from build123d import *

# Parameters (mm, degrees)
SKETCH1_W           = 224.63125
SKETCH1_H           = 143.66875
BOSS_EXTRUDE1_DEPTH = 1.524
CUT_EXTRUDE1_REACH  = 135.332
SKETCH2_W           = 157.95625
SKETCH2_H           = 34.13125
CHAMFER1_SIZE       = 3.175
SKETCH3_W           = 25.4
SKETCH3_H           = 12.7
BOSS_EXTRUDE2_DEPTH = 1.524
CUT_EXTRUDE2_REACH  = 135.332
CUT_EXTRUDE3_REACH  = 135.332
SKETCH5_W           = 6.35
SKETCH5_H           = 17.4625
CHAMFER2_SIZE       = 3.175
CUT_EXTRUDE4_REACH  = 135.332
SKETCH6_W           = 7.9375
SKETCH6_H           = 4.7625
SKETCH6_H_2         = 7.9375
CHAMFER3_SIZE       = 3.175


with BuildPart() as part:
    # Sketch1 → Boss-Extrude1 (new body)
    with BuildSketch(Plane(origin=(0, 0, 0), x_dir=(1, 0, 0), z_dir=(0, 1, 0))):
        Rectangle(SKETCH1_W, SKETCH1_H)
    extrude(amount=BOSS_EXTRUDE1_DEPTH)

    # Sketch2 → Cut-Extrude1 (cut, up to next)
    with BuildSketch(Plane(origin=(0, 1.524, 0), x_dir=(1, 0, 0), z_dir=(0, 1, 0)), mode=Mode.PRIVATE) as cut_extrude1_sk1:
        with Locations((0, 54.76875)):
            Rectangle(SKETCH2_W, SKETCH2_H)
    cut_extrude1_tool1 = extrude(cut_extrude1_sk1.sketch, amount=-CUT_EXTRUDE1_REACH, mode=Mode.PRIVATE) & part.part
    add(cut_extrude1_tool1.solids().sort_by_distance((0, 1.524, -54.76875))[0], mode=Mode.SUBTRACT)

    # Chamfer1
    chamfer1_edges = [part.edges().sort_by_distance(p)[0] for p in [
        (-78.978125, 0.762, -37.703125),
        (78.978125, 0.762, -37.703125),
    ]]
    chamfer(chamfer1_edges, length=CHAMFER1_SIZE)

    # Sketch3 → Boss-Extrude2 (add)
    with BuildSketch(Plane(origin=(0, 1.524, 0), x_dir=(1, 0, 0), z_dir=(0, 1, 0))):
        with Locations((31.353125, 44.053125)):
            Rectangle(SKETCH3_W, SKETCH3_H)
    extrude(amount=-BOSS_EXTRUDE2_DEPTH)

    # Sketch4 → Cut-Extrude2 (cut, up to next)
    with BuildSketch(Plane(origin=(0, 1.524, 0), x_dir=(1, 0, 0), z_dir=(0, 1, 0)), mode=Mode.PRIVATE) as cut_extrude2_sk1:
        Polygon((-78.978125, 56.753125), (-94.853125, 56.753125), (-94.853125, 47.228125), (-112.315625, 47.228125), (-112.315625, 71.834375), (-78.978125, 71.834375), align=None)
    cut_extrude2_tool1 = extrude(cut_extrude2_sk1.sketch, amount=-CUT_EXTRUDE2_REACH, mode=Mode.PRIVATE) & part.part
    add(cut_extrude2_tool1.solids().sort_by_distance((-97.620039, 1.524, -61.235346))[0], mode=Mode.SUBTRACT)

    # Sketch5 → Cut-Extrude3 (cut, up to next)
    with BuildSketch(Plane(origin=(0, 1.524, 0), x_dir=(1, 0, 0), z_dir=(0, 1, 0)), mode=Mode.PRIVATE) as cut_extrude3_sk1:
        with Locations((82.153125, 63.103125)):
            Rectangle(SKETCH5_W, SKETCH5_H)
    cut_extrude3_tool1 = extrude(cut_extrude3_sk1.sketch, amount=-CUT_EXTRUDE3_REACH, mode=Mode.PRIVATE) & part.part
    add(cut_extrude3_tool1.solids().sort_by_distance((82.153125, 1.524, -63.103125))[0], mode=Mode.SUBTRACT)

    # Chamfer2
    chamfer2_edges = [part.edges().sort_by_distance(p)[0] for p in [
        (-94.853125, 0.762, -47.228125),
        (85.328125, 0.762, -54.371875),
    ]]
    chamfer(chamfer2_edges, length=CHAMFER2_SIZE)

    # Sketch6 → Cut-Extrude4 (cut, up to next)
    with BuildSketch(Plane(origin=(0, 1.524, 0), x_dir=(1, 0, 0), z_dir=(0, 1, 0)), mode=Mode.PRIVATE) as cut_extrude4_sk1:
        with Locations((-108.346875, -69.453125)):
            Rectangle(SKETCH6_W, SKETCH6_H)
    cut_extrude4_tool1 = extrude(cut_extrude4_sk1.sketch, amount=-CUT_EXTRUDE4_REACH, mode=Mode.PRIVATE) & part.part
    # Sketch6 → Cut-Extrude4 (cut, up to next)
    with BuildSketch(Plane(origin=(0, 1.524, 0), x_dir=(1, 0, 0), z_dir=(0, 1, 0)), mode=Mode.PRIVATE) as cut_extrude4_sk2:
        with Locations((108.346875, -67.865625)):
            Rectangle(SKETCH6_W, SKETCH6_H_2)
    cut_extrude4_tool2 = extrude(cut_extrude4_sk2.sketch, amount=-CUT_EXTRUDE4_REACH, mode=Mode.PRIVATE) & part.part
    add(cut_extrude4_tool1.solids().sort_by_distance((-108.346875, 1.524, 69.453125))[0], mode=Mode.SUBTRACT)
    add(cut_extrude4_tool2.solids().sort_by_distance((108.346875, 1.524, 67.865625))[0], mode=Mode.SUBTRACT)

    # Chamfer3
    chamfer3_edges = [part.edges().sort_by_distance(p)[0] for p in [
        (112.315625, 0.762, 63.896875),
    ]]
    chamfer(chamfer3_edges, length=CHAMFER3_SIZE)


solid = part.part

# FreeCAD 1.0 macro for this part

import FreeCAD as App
import Part
import Sketcher
Q = App.Units.Quantity


def edges_at(feature, points):
    """Names of the edges that pass closest to the given points."""
    edges = feature.Shape.Edges
    near = lambda p: min(range(len(edges)), key=lambda i: edges[i].distToShape(Part.Vertex(*p))[0])
    return sorted({f"Edge{near(p) + 1}" for p in points})

doc = App.newDocument("Part")
body = doc.addObject("PartDesign::Body", "Body")

# Sketch on XZ plane
sketch1 = doc.addObject("Sketcher::SketchObject", "Sketch")
body.addObject(sketch1)
sketch1.AttachmentSupport = (doc.XZ_Plane, [""])
sketch1.MapMode = "FlatFace"
sketch1.addGeometry([
    Part.LineSegment(App.Vector(-112, -72, 0), App.Vector(-112, 72, 0)),
    Part.LineSegment(App.Vector(-112, 72, 0), App.Vector(112, 72, 0)),
    Part.LineSegment(App.Vector(112, 72, 0), App.Vector(112, -72, 0)),
    Part.LineSegment(App.Vector(112, -72, 0), App.Vector(-112, -72, 0)),
], False)
sketch1.addConstraint([
    Sketcher.Constraint("Coincident", 0, 2, 1, 1),
    Sketcher.Constraint("Coincident", 1, 2, 2, 1),
    Sketcher.Constraint("Coincident", 2, 2, 3, 1),
    Sketcher.Constraint("Coincident", 3, 2, 0, 1),
    Sketcher.Constraint("Vertical", 0),
    Sketcher.Constraint("Horizontal", 1),
    Sketcher.Constraint("Vertical", 2),
    Sketcher.Constraint("Horizontal", 3),
    Sketcher.Constraint("Symmetric", 0, 2, 2, 2, -1, 1),
    Sketcher.Constraint("DistanceX", 1, 1, 1, 2, Q("8.84375 in")),
    Sketcher.Constraint("DistanceY", 0, 1, 0, 2, Q("5.65625 in")),
])
pad1 = doc.addObject("PartDesign::Pad", "Pad")
body.addObject(pad1)
pad1.Profile = sketch1
pad1.Length = Q("0.06 in")
pad1.Reversed = True

# Sketch on XZ plane
sketch2 = doc.addObject("Sketcher::SketchObject", "Sketch001")
body.addObject(sketch2)
sketch2.AttachmentSupport = (doc.XZ_Plane, [""])
sketch2.MapMode = "FlatFace"
sketch2.AttachmentOffset = App.Placement(App.Vector(0, 0, -0.06 * 25.4), App.Rotation())
sketch2.addGeometry([
    Part.LineSegment(App.Vector(-79, -72, 0), App.Vector(-79, -38, 0)),
    Part.LineSegment(App.Vector(-79, -38, 0), App.Vector(79, -38, 0)),
    Part.LineSegment(App.Vector(79, -38, 0), App.Vector(79, -72, 0)),
    Part.LineSegment(App.Vector(79, -72, 0), App.Vector(-79, -72, 0)),
], False)
sketch2.addConstraint([
    Sketcher.Constraint("Coincident", 0, 2, 1, 1),
    Sketcher.Constraint("Coincident", 1, 2, 2, 1),
    Sketcher.Constraint("Coincident", 2, 2, 3, 1),
    Sketcher.Constraint("Coincident", 3, 2, 0, 1),
    Sketcher.Constraint("Vertical", 0),
    Sketcher.Constraint("Horizontal", 1),
    Sketcher.Constraint("Vertical", 2),
    Sketcher.Constraint("Horizontal", 3),
    Sketcher.Constraint("DistanceX", 1, 1, 1, 2, Q("6.21875 in")),
    Sketcher.Constraint("DistanceY", 0, 1, 0, 2, Q("1.34375 in")),
    Sketcher.Constraint("DistanceX", 0, 2, -1, 1, Q("3.109375 in")),
    Sketcher.Constraint("DistanceY", 0, 2, -1, 1, Q("1.484375 in")),
])
pocket1 = doc.addObject("PartDesign::Pocket", "Pocket")
body.addObject(pocket1)
pocket1.Profile = sketch2
pocket1.Type = "UpToFirst"
pocket1.Reversed = True
doc.recompute()

chamfer = doc.addObject("PartDesign::Chamfer", "Chamfer")
body.addObject(chamfer)
chamfer.Base = (pocket1, edges_at(pocket1, [(-78.978, 0.762, -37.703), (78.978, 0.762, -37.703)]))
chamfer.Size = Q("0.125 in")

# Sketch on XZ plane
sketch3 = doc.addObject("Sketcher::SketchObject", "Sketch002")
body.addObject(sketch3)
sketch3.AttachmentSupport = (doc.XZ_Plane, [""])
sketch3.MapMode = "FlatFace"
sketch3.AttachmentOffset = App.Placement(App.Vector(0, 0, -0.06 * 25.4), App.Rotation())
sketch3.addGeometry([
    Part.LineSegment(App.Vector(19, -50, 0), App.Vector(19, -38, 0)),
    Part.LineSegment(App.Vector(19, -38, 0), App.Vector(44, -38, 0)),
    Part.LineSegment(App.Vector(44, -38, 0), App.Vector(44, -50, 0)),
    Part.LineSegment(App.Vector(44, -50, 0), App.Vector(19, -50, 0)),
], False)
sketch3.addConstraint([
    Sketcher.Constraint("Coincident", 0, 2, 1, 1),
    Sketcher.Constraint("Coincident", 1, 2, 2, 1),
    Sketcher.Constraint("Coincident", 2, 2, 3, 1),
    Sketcher.Constraint("Coincident", 3, 2, 0, 1),
    Sketcher.Constraint("Vertical", 0),
    Sketcher.Constraint("Horizontal", 1),
    Sketcher.Constraint("Vertical", 2),
    Sketcher.Constraint("Horizontal", 3),
    Sketcher.Constraint("DistanceX", 1, 1, 1, 2, Q("1 in")),
    Sketcher.Constraint("DistanceY", 0, 1, 0, 2, Q("0.5 in")),
    Sketcher.Constraint("DistanceX", -1, 1, 0, 2, Q("0.734375 in")),
    Sketcher.Constraint("DistanceY", 0, 2, -1, 1, Q("1.484375 in")),
])
pad2 = doc.addObject("PartDesign::Pad", "Pad001")
body.addObject(pad2)
pad2.Profile = sketch3
pad2.Length = Q("0.06 in")

# Sketch on XZ plane
sketch4 = doc.addObject("Sketcher::SketchObject", "Sketch003")
body.addObject(sketch4)
sketch4.AttachmentSupport = (doc.XZ_Plane, [""])
sketch4.MapMode = "FlatFace"
sketch4.AttachmentOffset = App.Placement(App.Vector(0, 0, -0.06 * 25.4), App.Rotation())
sketch4.addGeometry([
    Part.LineSegment(App.Vector(-95, -57, 0), App.Vector(-79, -57, 0)),  # 0
    Part.LineSegment(App.Vector(-79, -57, 0), App.Vector(-79, -72, 0)),  # 1
    Part.LineSegment(App.Vector(-79, -72, 0), App.Vector(-112, -72, 0)),  # 2
    Part.LineSegment(App.Vector(-112, -72, 0), App.Vector(-112, -47, 0)),  # 3
    Part.LineSegment(App.Vector(-112, -47, 0), App.Vector(-95, -47, 0)),  # 4
    Part.LineSegment(App.Vector(-95, -47, 0), App.Vector(-95, -57, 0)),  # 5
], False)
sketch4.addConstraint([
    Sketcher.Constraint("Coincident", 0, 2, 1, 1),
    Sketcher.Constraint("Coincident", 1, 2, 2, 1),
    Sketcher.Constraint("Coincident", 2, 2, 3, 1),
    Sketcher.Constraint("Coincident", 3, 2, 4, 1),
    Sketcher.Constraint("Coincident", 4, 2, 5, 1),
    Sketcher.Constraint("Coincident", 5, 2, 0, 1),
    Sketcher.Constraint("Horizontal", 0),
    Sketcher.Constraint("Vertical", 1),
    Sketcher.Constraint("Horizontal", 2),
    Sketcher.Constraint("Vertical", 3),
    Sketcher.Constraint("Horizontal", 4),
    Sketcher.Constraint("Vertical", 5),
    Sketcher.Constraint("DistanceX", 0, 1, 0, 2, Q("0.625 in")),
    Sketcher.Constraint("DistanceX", 2, 2, 2, 1, Q("1.3125 in")),
    Sketcher.Constraint("DistanceY", 1, 2, 1, 1, Q("0.59375 in")),
    Sketcher.Constraint("DistanceY", 3, 1, 3, 2, Q("0.96875 in")),
    Sketcher.Constraint("DistanceX", 0, 2, -1, 1, Q("3.109375 in")),
    Sketcher.Constraint("DistanceY", 0, 2, -1, 1, Q("2.234375 in")),
])
pocket2 = doc.addObject("PartDesign::Pocket", "Pocket001")
body.addObject(pocket2)
pocket2.Profile = sketch4
pocket2.Type = "UpToFirst"
pocket2.Reversed = True

# Sketch on XZ plane
sketch5 = doc.addObject("Sketcher::SketchObject", "Sketch004")
body.addObject(sketch5)
sketch5.AttachmentSupport = (doc.XZ_Plane, [""])
sketch5.MapMode = "FlatFace"
sketch5.AttachmentOffset = App.Placement(App.Vector(0, 0, -0.06 * 25.4), App.Rotation())
sketch5.addGeometry([
    Part.LineSegment(App.Vector(79, -72, 0), App.Vector(79, -54, 0)),
    Part.LineSegment(App.Vector(79, -54, 0), App.Vector(85, -54, 0)),
    Part.LineSegment(App.Vector(85, -54, 0), App.Vector(85, -72, 0)),
    Part.LineSegment(App.Vector(85, -72, 0), App.Vector(79, -72, 0)),
], False)
sketch5.addConstraint([
    Sketcher.Constraint("Coincident", 0, 2, 1, 1),
    Sketcher.Constraint("Coincident", 1, 2, 2, 1),
    Sketcher.Constraint("Coincident", 2, 2, 3, 1),
    Sketcher.Constraint("Coincident", 3, 2, 0, 1),
    Sketcher.Constraint("Vertical", 0),
    Sketcher.Constraint("Horizontal", 1),
    Sketcher.Constraint("Vertical", 2),
    Sketcher.Constraint("Horizontal", 3),
    Sketcher.Constraint("DistanceX", 1, 1, 1, 2, Q("0.25 in")),
    Sketcher.Constraint("DistanceY", 0, 1, 0, 2, Q("0.6875 in")),
    Sketcher.Constraint("DistanceX", -1, 1, 0, 2, Q("3.109375 in")),
    Sketcher.Constraint("DistanceY", 0, 2, -1, 1, Q("2.140625 in")),
])
pocket3 = doc.addObject("PartDesign::Pocket", "Pocket002")
body.addObject(pocket3)
pocket3.Profile = sketch5
pocket3.Type = "UpToFirst"
pocket3.Reversed = True
doc.recompute()

chamfer2 = doc.addObject("PartDesign::Chamfer", "Chamfer001")
body.addObject(chamfer2)
chamfer2.Base = (pocket3, edges_at(pocket3, [(-94.853, 0.762, -47.228), (85.328, 0.762, -54.372)]))
chamfer2.Size = Q("0.125 in")

# Sketch on XZ plane
sketch6 = doc.addObject("Sketcher::SketchObject", "Sketch005")
body.addObject(sketch6)
sketch6.AttachmentSupport = (doc.XZ_Plane, [""])
sketch6.MapMode = "FlatFace"
sketch6.AttachmentOffset = App.Placement(App.Vector(0, 0, -0.06 * 25.4), App.Rotation())
sketch6.addGeometry([
    Part.LineSegment(App.Vector(-112.3, 67.1, 0), App.Vector(-112.3, 71.8, 0)),
    Part.LineSegment(App.Vector(-112.3, 71.8, 0), App.Vector(-104.4, 71.8, 0)),
    Part.LineSegment(App.Vector(-104.4, 71.8, 0), App.Vector(-104.4, 67.1, 0)),
    Part.LineSegment(App.Vector(-104.4, 67.1, 0), App.Vector(-112.3, 67.1, 0)),
], False)
sketch6.addConstraint([
    Sketcher.Constraint("Coincident", 0, 2, 1, 1),
    Sketcher.Constraint("Coincident", 1, 2, 2, 1),
    Sketcher.Constraint("Coincident", 2, 2, 3, 1),
    Sketcher.Constraint("Coincident", 3, 2, 0, 1),
    Sketcher.Constraint("Vertical", 0),
    Sketcher.Constraint("Horizontal", 1),
    Sketcher.Constraint("Vertical", 2),
    Sketcher.Constraint("Horizontal", 3),
    Sketcher.Constraint("DistanceX", 1, 1, 1, 2, Q("0.3125 in")),
    Sketcher.Constraint("DistanceY", 0, 1, 0, 2, Q("0.1875 in")),
    Sketcher.Constraint("DistanceX", 0, 2, -1, 1, Q("4.421875 in")),
    Sketcher.Constraint("DistanceY", -1, 1, 0, 2, Q("2.828125 in")),
])
pocket4 = doc.addObject("PartDesign::Pocket", "Pocket003")
body.addObject(pocket4)
pocket4.Profile = sketch6
pocket4.Type = "UpToFirst"
pocket4.Reversed = True

# Sketch on XZ plane
sketch7 = doc.addObject("Sketcher::SketchObject", "Sketch006")
body.addObject(sketch7)
sketch7.AttachmentSupport = (doc.XZ_Plane, [""])
sketch7.MapMode = "FlatFace"
sketch7.AttachmentOffset = App.Placement(App.Vector(0, 0, -0.06 * 25.4), App.Rotation())
sketch7.addGeometry([
    Part.LineSegment(App.Vector(104, 64, 0), App.Vector(104, 72, 0)),
    Part.LineSegment(App.Vector(104, 72, 0), App.Vector(112, 72, 0)),
    Part.LineSegment(App.Vector(112, 72, 0), App.Vector(112, 64, 0)),
    Part.LineSegment(App.Vector(112, 64, 0), App.Vector(104, 64, 0)),
], False)
sketch7.addConstraint([
    Sketcher.Constraint("Coincident", 0, 2, 1, 1),
    Sketcher.Constraint("Coincident", 1, 2, 2, 1),
    Sketcher.Constraint("Coincident", 2, 2, 3, 1),
    Sketcher.Constraint("Coincident", 3, 2, 0, 1),
    Sketcher.Constraint("Vertical", 0),
    Sketcher.Constraint("Horizontal", 1),
    Sketcher.Constraint("Vertical", 2),
    Sketcher.Constraint("Horizontal", 3),
    Sketcher.Constraint("Equal", 3, 0),
    Sketcher.Constraint("DistanceX", 1, 1, 1, 2, Q("0.3125 in")),
    Sketcher.Constraint("DistanceX", -1, 1, 0, 2, Q("4.109375 in")),
    Sketcher.Constraint("DistanceY", -1, 1, 0, 2, Q("2.828125 in")),
])
pocket5 = doc.addObject("PartDesign::Pocket", "Pocket004")
body.addObject(pocket5)
pocket5.Profile = sketch7
pocket5.Type = "UpToFirst"
pocket5.Reversed = True
doc.recompute()

chamfer3 = doc.addObject("PartDesign::Chamfer", "Chamfer002")
body.addObject(chamfer3)
chamfer3.Base = (pocket5, edges_at(pocket5, [(112.316, 0.762, 63.897)]))
chamfer3.Size = Q("0.125 in")

doc.recompute()
